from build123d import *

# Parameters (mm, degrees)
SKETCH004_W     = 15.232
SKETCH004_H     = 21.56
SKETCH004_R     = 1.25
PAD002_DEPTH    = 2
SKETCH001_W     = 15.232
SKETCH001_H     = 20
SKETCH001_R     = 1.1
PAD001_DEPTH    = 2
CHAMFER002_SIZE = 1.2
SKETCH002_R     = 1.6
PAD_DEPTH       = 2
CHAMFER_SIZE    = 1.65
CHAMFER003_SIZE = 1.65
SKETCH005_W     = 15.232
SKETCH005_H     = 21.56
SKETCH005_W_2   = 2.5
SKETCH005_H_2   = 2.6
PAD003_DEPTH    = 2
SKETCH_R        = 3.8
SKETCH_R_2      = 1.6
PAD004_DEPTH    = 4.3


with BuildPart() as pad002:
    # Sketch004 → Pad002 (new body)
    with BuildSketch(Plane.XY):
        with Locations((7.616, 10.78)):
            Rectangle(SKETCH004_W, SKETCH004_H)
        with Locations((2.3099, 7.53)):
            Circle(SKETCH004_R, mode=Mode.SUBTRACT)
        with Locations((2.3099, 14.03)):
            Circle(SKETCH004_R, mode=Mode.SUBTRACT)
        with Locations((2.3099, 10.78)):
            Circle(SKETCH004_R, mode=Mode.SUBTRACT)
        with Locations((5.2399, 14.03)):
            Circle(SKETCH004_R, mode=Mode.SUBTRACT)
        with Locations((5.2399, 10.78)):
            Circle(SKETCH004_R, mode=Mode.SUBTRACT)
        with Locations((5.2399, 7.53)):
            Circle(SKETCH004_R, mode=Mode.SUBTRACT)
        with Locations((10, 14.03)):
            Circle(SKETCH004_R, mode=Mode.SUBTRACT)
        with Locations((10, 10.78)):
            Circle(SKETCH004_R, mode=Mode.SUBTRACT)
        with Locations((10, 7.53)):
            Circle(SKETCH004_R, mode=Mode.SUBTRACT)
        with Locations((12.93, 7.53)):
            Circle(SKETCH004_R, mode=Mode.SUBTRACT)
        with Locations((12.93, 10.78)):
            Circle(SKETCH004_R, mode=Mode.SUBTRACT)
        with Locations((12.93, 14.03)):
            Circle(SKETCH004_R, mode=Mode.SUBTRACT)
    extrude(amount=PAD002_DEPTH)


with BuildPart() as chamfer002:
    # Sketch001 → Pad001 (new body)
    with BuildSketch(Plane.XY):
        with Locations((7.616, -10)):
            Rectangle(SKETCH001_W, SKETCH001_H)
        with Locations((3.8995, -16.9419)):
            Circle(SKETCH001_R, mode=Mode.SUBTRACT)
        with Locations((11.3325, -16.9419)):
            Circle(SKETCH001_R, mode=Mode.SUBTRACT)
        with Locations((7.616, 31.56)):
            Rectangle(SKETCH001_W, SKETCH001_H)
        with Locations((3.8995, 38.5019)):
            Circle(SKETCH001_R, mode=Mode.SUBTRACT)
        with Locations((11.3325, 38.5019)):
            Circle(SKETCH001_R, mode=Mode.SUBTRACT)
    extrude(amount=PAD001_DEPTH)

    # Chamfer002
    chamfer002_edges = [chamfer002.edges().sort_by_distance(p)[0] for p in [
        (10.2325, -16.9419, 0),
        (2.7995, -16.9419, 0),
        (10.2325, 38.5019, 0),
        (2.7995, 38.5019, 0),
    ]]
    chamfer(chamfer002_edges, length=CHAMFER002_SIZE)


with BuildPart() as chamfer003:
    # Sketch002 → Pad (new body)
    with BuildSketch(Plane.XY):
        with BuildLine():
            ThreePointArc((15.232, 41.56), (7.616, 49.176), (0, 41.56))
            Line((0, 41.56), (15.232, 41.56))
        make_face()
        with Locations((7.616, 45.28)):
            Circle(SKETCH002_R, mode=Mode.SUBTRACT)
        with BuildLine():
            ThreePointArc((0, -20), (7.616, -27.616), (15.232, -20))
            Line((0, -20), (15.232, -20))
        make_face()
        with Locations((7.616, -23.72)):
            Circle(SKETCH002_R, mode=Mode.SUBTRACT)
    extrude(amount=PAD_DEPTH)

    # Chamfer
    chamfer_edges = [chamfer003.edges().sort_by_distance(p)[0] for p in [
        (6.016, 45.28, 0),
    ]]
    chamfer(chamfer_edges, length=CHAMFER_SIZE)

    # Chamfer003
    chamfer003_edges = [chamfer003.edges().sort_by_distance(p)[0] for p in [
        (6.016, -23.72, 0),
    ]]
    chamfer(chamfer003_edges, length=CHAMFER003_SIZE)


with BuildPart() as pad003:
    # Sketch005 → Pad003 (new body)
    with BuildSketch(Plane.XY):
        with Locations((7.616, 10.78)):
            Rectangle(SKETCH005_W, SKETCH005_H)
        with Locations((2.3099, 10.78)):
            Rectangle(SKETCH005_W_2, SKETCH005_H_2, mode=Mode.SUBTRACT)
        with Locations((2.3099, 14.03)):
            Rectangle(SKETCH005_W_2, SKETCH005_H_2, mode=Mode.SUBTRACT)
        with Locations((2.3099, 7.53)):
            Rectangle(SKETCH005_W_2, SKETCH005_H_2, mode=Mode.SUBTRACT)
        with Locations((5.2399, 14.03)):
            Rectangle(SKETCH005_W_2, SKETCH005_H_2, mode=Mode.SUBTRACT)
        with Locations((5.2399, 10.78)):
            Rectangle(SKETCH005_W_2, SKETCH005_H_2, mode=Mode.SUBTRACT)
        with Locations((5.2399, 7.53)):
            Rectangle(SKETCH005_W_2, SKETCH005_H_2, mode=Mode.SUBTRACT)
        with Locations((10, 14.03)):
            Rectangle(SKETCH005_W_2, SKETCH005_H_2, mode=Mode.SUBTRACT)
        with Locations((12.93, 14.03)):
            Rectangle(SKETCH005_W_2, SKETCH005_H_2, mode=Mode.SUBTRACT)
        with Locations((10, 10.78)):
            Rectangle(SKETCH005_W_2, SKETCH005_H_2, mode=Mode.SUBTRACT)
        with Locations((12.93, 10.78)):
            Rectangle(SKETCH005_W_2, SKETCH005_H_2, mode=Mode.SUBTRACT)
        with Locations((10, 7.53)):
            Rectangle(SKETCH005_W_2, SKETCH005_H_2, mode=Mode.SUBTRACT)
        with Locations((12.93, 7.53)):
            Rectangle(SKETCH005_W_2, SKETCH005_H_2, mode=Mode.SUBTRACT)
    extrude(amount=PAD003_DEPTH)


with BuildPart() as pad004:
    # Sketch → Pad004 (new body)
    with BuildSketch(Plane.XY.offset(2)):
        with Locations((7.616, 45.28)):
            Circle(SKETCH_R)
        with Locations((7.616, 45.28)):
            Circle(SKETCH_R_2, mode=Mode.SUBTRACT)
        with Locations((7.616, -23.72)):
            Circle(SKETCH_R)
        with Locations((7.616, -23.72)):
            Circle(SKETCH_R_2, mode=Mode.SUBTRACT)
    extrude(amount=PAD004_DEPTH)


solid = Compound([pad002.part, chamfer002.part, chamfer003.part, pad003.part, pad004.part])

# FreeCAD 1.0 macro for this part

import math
import FreeCAD as App
import Part
import Sketcher
Q = App.Units.Quantity


def edges_at(feature, points):
    """Names of the edges that pass closest to the given points."""
    edges = feature.Shape.Edges
    near = lambda p: min(range(len(edges)), key=lambda i: edges[i].distToShape(Part.Vertex(*p))[0])
    return sorted({f"Edge{near(p) + 1}" for p in points})


def add_polygon(sketch, points):
    """Adds a closed chain of lines whose ends are joined by coincident constraints."""
    first, n = sketch.GeometryCount, len(points)
    for a, b in zip(points, points[1:] + points[:1]):
        sketch.addGeometry(Part.LineSegment(App.Vector(*a, 0), App.Vector(*b, 0)), False)
    for i in range(n):
        sketch.addConstraint(Sketcher.Constraint("Coincident", first + i, 2, first + (i + 1) % n, 1))

doc = App.newDocument("Part")
params = doc.addObject("Spreadsheet::Sheet", "Params")
for row, (alias, value) in enumerate([
    ("sketch1_diameter", "2.5 mm"),
    ("sketch1_height", "21.56 mm"),
    ("pad1_length", "2 mm"),
    ("sketch2_diameter", "2.2 mm"),
    ("sketch2_height", "20 mm"),
    ("pad2_length", "2 mm"),
    ("chamfer_size", "1.2 mm"),
    ("sketch3_diameter", "3.2 mm"),
    ("pad3_length", "2 mm"),
    ("chamfer2_size", "1.65 mm"),
    ("chamfer3_size", "1.65 mm"),
    ("sketch4_width", "2.5 mm"),
    ("sketch4_height", "2.6 mm"),
    ("sketch4_height2", "21.56 mm"),
    ("pad4_length", "2 mm"),
    ("sketch5_diameter", "7.6 mm"),
    ("sketch5_diameter2", "3.2 mm"),
    ("pad5_length", "4.3 mm"),
], start=1):
    params.set(f"A{row}", alias)
    params.set(f"B{row}", "=" + value)
    params.setAlias(f"B{row}", alias)

body = doc.addObject("PartDesign::Body", "Body")

# Sketch on XY plane
sketch1 = body.newObject("Sketcher::SketchObject", "Sketch")
sketch1.AttachmentSupport = (doc.getObject("XY_Plane"), [""])
sketch1.MapMode = "FlatFace"
add_polygon(sketch1, [(0, 21.56), (0, 0), (15.232, 0), (15.232, 21.56)])  # lines 0-3
sketch1.addGeometry(Part.Circle(App.Vector(2.3099, 7.53, 0), App.Vector(0, 0, 1), 1.25), False)  # 4
sketch1.addGeometry(Part.Circle(App.Vector(5.2399, 7.53, 0), App.Vector(0, 0, 1), 1.25), False)  # 5
sketch1.addGeometry(Part.Circle(App.Vector(2.3099, 10.78, 0), App.Vector(0, 0, 1), 1.25), False)  # 6
sketch1.addGeometry(Part.Circle(App.Vector(5.2399, 10.78, 0), App.Vector(0, 0, 1), 1.25), False)  # 7
sketch1.addGeometry(Part.Circle(App.Vector(10, 7.53, 0), App.Vector(0, 0, 1), 1.25), False)  # 8
sketch1.addGeometry(Part.Circle(App.Vector(12.93, 7.53, 0), App.Vector(0, 0, 1), 1.25), False)  # 9
sketch1.addGeometry(Part.Circle(App.Vector(10, 10.78, 0), App.Vector(0, 0, 1), 1.25), False)  # 10
sketch1.addGeometry(Part.Circle(App.Vector(12.93, 10.78, 0), App.Vector(0, 0, 1), 1.25), False)  # 11
sketch1.addGeometry(Part.Circle(App.Vector(2.3099, 14.03, 0), App.Vector(0, 0, 1), 1.25), False)  # 12
sketch1.addGeometry(Part.Circle(App.Vector(5.2399, 14.03, 0), App.Vector(0, 0, 1), 1.25), False)  # 13
sketch1.addGeometry(Part.Circle(App.Vector(10, 14.03, 0), App.Vector(0, 0, 1), 1.25), False)  # 14
sketch1.addGeometry(Part.Circle(App.Vector(12.93, 14.03, 0), App.Vector(0, 0, 1), 1.25), False)  # 15
sketch1.addConstraint([
    Sketcher.Constraint("Vertical", 0),
    Sketcher.Constraint("Horizontal", 1),
    Sketcher.Constraint("Vertical", 2),
    Sketcher.Constraint("Horizontal", 3),
    Sketcher.Constraint("Coincident", 0, 2, -1, 1),
    Sketcher.Constraint("Equal", 4, 5),
    Sketcher.Constraint("Equal", 5, 6),
    Sketcher.Constraint("Equal", 6, 7),
    Sketcher.Constraint("Equal", 7, 8),
    Sketcher.Constraint("Equal", 8, 9),
    Sketcher.Constraint("Equal", 9, 10),
    Sketcher.Constraint("Equal", 10, 11),
    Sketcher.Constraint("Equal", 11, 12),
    Sketcher.Constraint("Equal", 12, 13),
    Sketcher.Constraint("Equal", 13, 14),
    Sketcher.Constraint("Equal", 14, 15),
    Sketcher.Constraint("Horizontal", 4, 3, 5, 3),
    Sketcher.Constraint("Horizontal", 6, 3, 7, 3),
    Sketcher.Constraint("Horizontal", 5, 3, 8, 3),
    Sketcher.Constraint("Horizontal", 8, 3, 9, 3),
    Sketcher.Constraint("Horizontal", 7, 3, 10, 3),
    Sketcher.Constraint("Horizontal", 10, 3, 11, 3),
    Sketcher.Constraint("Horizontal", 12, 3, 13, 3),
    Sketcher.Constraint("Horizontal", 13, 3, 14, 3),
    Sketcher.Constraint("Horizontal", 14, 3, 15, 3),
    Sketcher.Constraint("Vertical", 4, 3, 6, 3),
    Sketcher.Constraint("Vertical", 5, 3, 7, 3),
    Sketcher.Constraint("Vertical", 8, 3, 10, 3),
    Sketcher.Constraint("Vertical", 9, 3, 11, 3),
    Sketcher.Constraint("Vertical", 6, 3, 12, 3),
    Sketcher.Constraint("Vertical", 7, 3, 13, 3),
    Sketcher.Constraint("Vertical", 10, 3, 14, 3),
    Sketcher.Constraint("Vertical", 11, 3, 15, 3),
    Sketcher.Constraint("Diameter", 4, Q("2.5 mm")),
    Sketcher.Constraint("DistanceX", -1, 1, 8, 3, Q("10 mm")),
    Sketcher.Constraint("DistanceY", 0, 2, 0, 1, Q("21.56 mm")),
    Sketcher.Constraint("DistanceY", 4, 3, 12, 3, Q("6.5 mm")),
    Sketcher.Constraint("DistanceX", 1, 1, 1, 2, Q("15.232 mm")),
    Sketcher.Constraint("DistanceY", -1, 1, 4, 3, Q("7.53 mm")),
    Sketcher.Constraint("DistanceY", -1, 1, 6, 3, Q("10.78 mm")),
    Sketcher.Constraint("DistanceX", -1, 1, 9, 3, Q("12.93 mm")),
    Sketcher.Constraint("DistanceX", 4, 3, 5, 3, Q("2.93 mm")),
    Sketcher.Constraint("DistanceX", -1, 1, 4, 3, Q("2.3099 mm")),
])
sketch1.setExpression("Constraints[37]", "Params.sketch1_diameter")
sketch1.setExpression("Constraints[39]", "Params.sketch1_height")
pad1 = body.newObject("PartDesign::Pad", "Pad")
pad1.Profile = sketch1
pad1.setExpression("Length", "Params.pad1_length")
body2 = doc.addObject("PartDesign::Body", "Body001")
body2.AllowCompound = True

# Sketch on XY plane
sketch2 = body2.newObject("Sketcher::SketchObject", "Sketch001")
sketch2.AttachmentSupport = (doc.getObject("XY_Plane001"), [""])
sketch2.MapMode = "FlatFace"
add_polygon(sketch2, [(0, 0), (0, -20), (15.232, -20), (15.232, 0)])  # lines 0-3
sketch2.addGeometry(Part.Circle(App.Vector(3.8995, -16.9419, 0), App.Vector(0, 0, 1), 1.1), False)  # 4
sketch2.addGeometry(Part.Circle(App.Vector(11.3325, -16.9419, 0), App.Vector(0, 0, 1), 1.1), False)  # 5
add_polygon(sketch2, [(0, 41.56), (0, 21.56), (15.232, 21.56), (15.232, 41.56)])  # lines 6-9
sketch2.addGeometry(Part.Circle(App.Vector(3.8995, 38.5019, 0), App.Vector(0, 0, 1), 1.1), False)  # 10
sketch2.addGeometry(Part.Circle(App.Vector(11.3325, 38.5019, 0), App.Vector(0, 0, 1), 1.1), False)  # 11
sketch2.addConstraint([
    Sketcher.Constraint("Vertical", 0),
    Sketcher.Constraint("Horizontal", 1),
    Sketcher.Constraint("Vertical", 2),
    Sketcher.Constraint("Horizontal", 3),
    Sketcher.Constraint("Vertical", 6),
    Sketcher.Constraint("Horizontal", 7),
    Sketcher.Constraint("Vertical", 8),
    Sketcher.Constraint("Horizontal", 9),
    Sketcher.Constraint("Coincident", 3, 2, -1, 1),
    Sketcher.Constraint("Equal", 4, 5),
    Sketcher.Constraint("Equal", 5, 10),
    Sketcher.Constraint("Equal", 10, 11),
    Sketcher.Constraint("PointOnObject", 6, 2, -2),
    Sketcher.Constraint("Horizontal", 4, 3, 5, 3),
    Sketcher.Constraint("Horizontal", 10, 3, 11, 3),
    Sketcher.Constraint("Vertical", 4, 3, 10, 3),
    Sketcher.Constraint("Vertical", 5, 3, 11, 3),
    Sketcher.Constraint("Vertical", 2, 2, 7, 2),
    Sketcher.Constraint("Equal", 2, 6),
    Sketcher.Constraint("Diameter", 4, Q("2.2 mm")),
    Sketcher.Constraint("DistanceY", 0, 2, 0, 1, Q("20 mm")),
    Sketcher.Constraint("DistanceX", 1, 1, 1, 2, Q("15.232 mm")),
    Sketcher.Constraint("DistanceY", -1, 1, 6, 2, Q("21.56 mm")),
    Sketcher.Constraint("DistanceX", 4, 3, 5, 3, Q("7.433 mm")),
    Sketcher.Constraint("DistanceX", -1, 1, 4, 3, Q("3.8995 mm")),
    Sketcher.Constraint("DistanceY", 4, 3, -1, 1, Q("16.9419 mm")),
    Sketcher.Constraint("DistanceY", -1, 1, 10, 3, Q("38.5019 mm")),
])
sketch2.setExpression("Constraints[27]", "Params.sketch2_diameter")
sketch2.setExpression("Constraints[28]", "Params.sketch2_height")
pad2 = body2.newObject("PartDesign::Pad", "Pad001")
pad2.Profile = sketch2
pad2.setExpression("Length", "Params.pad2_length")
doc.recompute()

chamfer = body2.newObject("PartDesign::Chamfer", "Chamfer")
chamfer.Base = (pad2, edges_at(pad2, [
    (10.232, -16.942, 0),
    (2.8, -16.942, 0),
    (10.232, 38.502, 0),
    (2.8, 38.502, 0),
]))
chamfer.setExpression("Size", "Params.chamfer_size")
body3 = doc.addObject("PartDesign::Body", "Body002")
body3.AllowCompound = True

# Sketch on XY plane
sketch3 = body3.newObject("Sketcher::SketchObject", "Sketch002")
sketch3.AttachmentSupport = (doc.getObject("XY_Plane002"), [""])
sketch3.MapMode = "FlatFace"
sketch3.addGeometry([
    Part.ArcOfCircle(Part.Circle(App.Vector(7.616, 41.56, 0), App.Vector(0, 0, 1), 7.616), math.radians(0), math.radians(180)),  # 0
    Part.LineSegment(App.Vector(0, 41.56, 0), App.Vector(15.232, 41.56, 0)),  # 1
    Part.Circle(App.Vector(7.616, 45.28, 0), App.Vector(0, 0, 1), 1.6),  # 2
    Part.ArcOfCircle(Part.Circle(App.Vector(7.616, -20, 0), App.Vector(0, 0, 1), 7.616), math.radians(180), math.radians(360)),  # 3
    Part.LineSegment(App.Vector(15.232, -20, 0), App.Vector(0, -20, 0)),  # 4
    Part.Circle(App.Vector(7.616, -23.72, 0), App.Vector(0, 0, 1), 1.6),  # 5
], False)
sketch3.addConstraint([
    Sketcher.Constraint("Coincident", 0, 1, 1, 2),
    Sketcher.Constraint("Coincident", 1, 1, 0, 2),
    Sketcher.Constraint("Coincident", 3, 1, 4, 2),
    Sketcher.Constraint("Coincident", 4, 1, 3, 2),
    Sketcher.Constraint("Horizontal", 1),
    Sketcher.Constraint("Horizontal", 4),
    Sketcher.Constraint("Equal", 0, 3),
    Sketcher.Constraint("Equal", 2, 5),
    Sketcher.Constraint("PointOnObject", 1, 1, -2),
    Sketcher.Constraint("PointOnObject", 3, 1, -2),
    Sketcher.Constraint("Vertical", 0, 3, 2, 3),
    Sketcher.Constraint("Vertical", 3, 3, 5, 3),
    Sketcher.Constraint("Diameter", 2, Q("3.2 mm")),
    Sketcher.Constraint("DistanceY", 3, 3, -1, 1, Q("20 mm")),
    Sketcher.Constraint("DistanceY", 3, 1, -1, 1, Q("20 mm")),
    Sketcher.Constraint("Radius", 0, Q("7.616 mm")),
    Sketcher.Constraint("DistanceY", 5, 3, 2, 3, Q("69 mm")),
    Sketcher.Constraint("DistanceY", -1, 1, 0, 3, Q("41.56 mm")),
    Sketcher.Constraint("DistanceY", -1, 1, 2, 3, Q("45.28 mm")),
    Sketcher.Constraint("DistanceY", -1, 1, 0, 1, Q("41.56 mm")),
])
sketch3.setExpression("Constraints[12]", "Params.sketch3_diameter")
pad3 = body3.newObject("PartDesign::Pad", "Pad002")
pad3.Profile = sketch3
pad3.setExpression("Length", "Params.pad3_length")
doc.recompute()

chamfer2 = body3.newObject("PartDesign::Chamfer", "Chamfer001")
chamfer2.Base = (pad3, edges_at(pad3, [(6.016, 45.28, 0)]))
chamfer2.setExpression("Size", "Params.chamfer2_size")
doc.recompute()

chamfer3 = body3.newObject("PartDesign::Chamfer", "Chamfer002")
chamfer3.Base = (chamfer2, edges_at(chamfer2, [(6.016, -23.72, 0)]))
chamfer3.setExpression("Size", "Params.chamfer3_size")
body4 = doc.addObject("PartDesign::Body", "Body003")

# Sketch on XY plane
sketch4 = body4.newObject("Sketcher::SketchObject", "Sketch003")
sketch4.AttachmentSupport = (doc.getObject("XY_Plane003"), [""])
sketch4.MapMode = "FlatFace"
add_polygon(sketch4, [(0, 21.56), (0, 0), (15.232, 0), (15.232, 21.56)])  # lines 0-3
add_polygon(sketch4, [(3.5599, 6.23), (1.0599, 6.23), (1.0599, 8.83), (3.5599, 8.83)])  # lines 4-7
add_polygon(sketch4, [(6.4899, 6.23), (3.9899, 6.23), (3.9899, 8.83), (6.4899, 8.83)])  # lines 8-11
add_polygon(sketch4, [(11.25, 6.23), (8.75, 6.23), (8.75, 8.83), (11.25, 8.83)])  # lines 12-15
add_polygon(sketch4, [(14.18, 6.23), (11.68, 6.23), (11.68, 8.83), (14.18, 8.83)])  # lines 16-19
add_polygon(sketch4, [(3.5599, 9.48), (1.0599, 9.48), (1.0599, 12.08), (3.5599, 12.08)])  # lines 20-23
add_polygon(sketch4, [(6.4899, 9.48), (3.9899, 9.48), (3.9899, 12.08), (6.4899, 12.08)])  # lines 24-27
add_polygon(sketch4, [(3.5599, 12.73), (1.0599, 12.73), (1.0599, 15.33), (3.5599, 15.33)])  # lines 28-31
add_polygon(sketch4, [(6.4899, 12.73), (3.9899, 12.73), (3.9899, 15.33), (6.4899, 15.33)])  # lines 32-35
add_polygon(sketch4, [(11.25, 9.48), (8.75, 9.48), (8.75, 12.08), (11.25, 12.08)])  # lines 36-39
add_polygon(sketch4, [(14.18, 9.48), (11.68, 9.48), (11.68, 12.08), (14.18, 12.08)])  # lines 40-43
add_polygon(sketch4, [(11.25, 12.73), (8.75, 12.73), (8.75, 15.33), (11.25, 15.33)])  # lines 44-47
add_polygon(sketch4, [(14.18, 12.73), (11.68, 12.73), (11.68, 15.33), (14.18, 15.33)])  # lines 48-51
sketch4.addConstraint([
    Sketcher.Constraint("Vertical", 0),
    Sketcher.Constraint("Horizontal", 1),
    Sketcher.Constraint("Vertical", 2),
    Sketcher.Constraint("Horizontal", 3),
    Sketcher.Constraint("Horizontal", 4),
    Sketcher.Constraint("Vertical", 5),
    Sketcher.Constraint("Horizontal", 6),
    Sketcher.Constraint("Vertical", 7),
    Sketcher.Constraint("Horizontal", 8),
    Sketcher.Constraint("Vertical", 9),
    Sketcher.Constraint("Horizontal", 10),
    Sketcher.Constraint("Vertical", 11),
    Sketcher.Constraint("Horizontal", 12),
    Sketcher.Constraint("Vertical", 13),
    Sketcher.Constraint("Horizontal", 14),
    Sketcher.Constraint("Vertical", 15),
    Sketcher.Constraint("Horizontal", 16),
    Sketcher.Constraint("Vertical", 17),
    Sketcher.Constraint("Horizontal", 18),
    Sketcher.Constraint("Vertical", 19),
    Sketcher.Constraint("Horizontal", 20),
    Sketcher.Constraint("Vertical", 21),
    Sketcher.Constraint("Horizontal", 22),
    Sketcher.Constraint("Vertical", 23),
    Sketcher.Constraint("Horizontal", 24),
    Sketcher.Constraint("Vertical", 25),
    Sketcher.Constraint("Horizontal", 26),
    Sketcher.Constraint("Vertical", 27),
    Sketcher.Constraint("Horizontal", 28),
    Sketcher.Constraint("Vertical", 29),
    Sketcher.Constraint("Horizontal", 30),
    Sketcher.Constraint("Vertical", 31),
    Sketcher.Constraint("Horizontal", 32),
    Sketcher.Constraint("Vertical", 33),
    Sketcher.Constraint("Horizontal", 34),
    Sketcher.Constraint("Vertical", 35),
    Sketcher.Constraint("Horizontal", 36),
    Sketcher.Constraint("Vertical", 37),
    Sketcher.Constraint("Horizontal", 38),
    Sketcher.Constraint("Vertical", 39),
    Sketcher.Constraint("Horizontal", 40),
    Sketcher.Constraint("Vertical", 41),
    Sketcher.Constraint("Horizontal", 42),
    Sketcher.Constraint("Vertical", 43),
    Sketcher.Constraint("Horizontal", 44),
    Sketcher.Constraint("Vertical", 45),
    Sketcher.Constraint("Horizontal", 46),
    Sketcher.Constraint("Vertical", 47),
    Sketcher.Constraint("Horizontal", 48),
    Sketcher.Constraint("Vertical", 49),
    Sketcher.Constraint("Horizontal", 50),
    Sketcher.Constraint("Vertical", 51),
    Sketcher.Constraint("Coincident", 0, 2, -1, 1),
    Sketcher.Constraint("Horizontal", 7, 2, 8, 2),
    Sketcher.Constraint("Horizontal", 6, 2, 9, 2),
    Sketcher.Constraint("Horizontal", 11, 2, 12, 2),
    Sketcher.Constraint("Horizontal", 10, 2, 13, 2),
    Sketcher.Constraint("Horizontal", 15, 2, 16, 2),
    Sketcher.Constraint("Horizontal", 14, 2, 17, 2),
    Sketcher.Constraint("Horizontal", 23, 2, 24, 2),
    Sketcher.Constraint("Horizontal", 22, 2, 25, 2),
    Sketcher.Constraint("Horizontal", 31, 2, 32, 2),
    Sketcher.Constraint("Horizontal", 30, 2, 33, 2),
    Sketcher.Constraint("Horizontal", 27, 2, 36, 2),
    Sketcher.Constraint("Horizontal", 26, 2, 37, 2),
    Sketcher.Constraint("Horizontal", 39, 2, 40, 2),
    Sketcher.Constraint("Horizontal", 38, 2, 41, 2),
    Sketcher.Constraint("Horizontal", 35, 2, 44, 2),
    Sketcher.Constraint("Horizontal", 34, 2, 45, 2),
    Sketcher.Constraint("Horizontal", 47, 2, 48, 2),
    Sketcher.Constraint("Horizontal", 46, 2, 49, 2),
    Sketcher.Constraint("Vertical", 5, 2, 20, 2),
    Sketcher.Constraint("Vertical", 7, 2, 22, 2),
    Sketcher.Constraint("Vertical", 9, 2, 24, 2),
    Sketcher.Constraint("Vertical", 11, 2, 26, 2),
    Sketcher.Constraint("Vertical", 21, 2, 28, 2),
    Sketcher.Constraint("Vertical", 23, 2, 30, 2),
    Sketcher.Constraint("Vertical", 25, 2, 32, 2),
    Sketcher.Constraint("Vertical", 27, 2, 34, 2),
    Sketcher.Constraint("Vertical", 13, 2, 36, 2),
    Sketcher.Constraint("Vertical", 15, 2, 38, 2),
    Sketcher.Constraint("Vertical", 17, 2, 40, 2),
    Sketcher.Constraint("Vertical", 19, 2, 42, 2),
    Sketcher.Constraint("Vertical", 37, 2, 44, 2),
    Sketcher.Constraint("Vertical", 39, 2, 46, 2),
    Sketcher.Constraint("Vertical", 41, 2, 48, 2),
    Sketcher.Constraint("Vertical", 43, 2, 50, 2),
    Sketcher.Constraint("Equal", 6, 8),
    Sketcher.Constraint("Equal", 10, 12),
    Sketcher.Constraint("Equal", 14, 16),
    Sketcher.Constraint("Equal", 19, 21),
    Sketcher.Constraint("Equal", 27, 29),
    Sketcher.Constraint("DistanceX", 4, 2, 4, 1, Q("2.5 mm")),
    Sketcher.Constraint("DistanceY", 5, 1, 5, 2, Q("2.6 mm")),
    Sketcher.Constraint("DistanceY", 0, 2, 0, 1, Q("21.56 mm")),
    Sketcher.Constraint("DistanceY", 5, 2, 28, 2, Q("3.9 mm")),
    Sketcher.Constraint("DistanceX", 1, 1, 1, 2, Q("15.232 mm")),
    Sketcher.Constraint("DistanceY", -1, 1, 4, 2, Q("6.23 mm")),
    Sketcher.Constraint("DistanceX", -1, 1, 12, 2, Q("8.75 mm")),
    Sketcher.Constraint("DistanceX", -1, 1, 16, 2, Q("11.68 mm")),
    Sketcher.Constraint("DistanceY", -1, 1, 20, 2, Q("9.48 mm")),
    Sketcher.Constraint("DistanceX", 7, 2, 8, 2, Q("0.43 mm")),
    Sketcher.Constraint("DistanceX", -1, 1, 4, 2, Q("1.0599 mm")),
])
sketch4.setExpression("Constraints[144]", "Params.sketch4_width")
sketch4.setExpression("Constraints[145]", "Params.sketch4_height")
sketch4.setExpression("Constraints[146]", "Params.sketch4_height2")
pad4 = body4.newObject("PartDesign::Pad", "Pad003")
pad4.Profile = sketch4
pad4.setExpression("Length", "Params.pad4_length")
body5 = doc.addObject("PartDesign::Body", "Body004")
body5.AllowCompound = True

# Sketch on XY plane
sketch5 = body5.newObject("Sketcher::SketchObject", "Sketch004")
sketch5.AttachmentSupport = (doc.getObject("XY_Plane004"), [""])
sketch5.MapMode = "FlatFace"
sketch5.AttachmentOffset = App.Placement(App.Vector(0, 0, 2), App.Rotation())
sketch5.addGeometry([
    Part.Circle(App.Vector(7.616, 45.28, 0), App.Vector(0, 0, 1), 3.8),
    Part.Circle(App.Vector(7.616, 45.28, 0), App.Vector(0, 0, 1), 1.6),
    Part.Circle(App.Vector(7.616, -23.72, 0), App.Vector(0, 0, 1), 3.8),
    Part.Circle(App.Vector(7.616, -23.72, 0), App.Vector(0, 0, 1), 1.6),
], False)
sketch5.addConstraint([
    Sketcher.Constraint("Coincident", 1, 3, 0, 3),
    Sketcher.Constraint("Coincident", 3, 3, 2, 3),
    Sketcher.Constraint("Equal", 0, 2),
    Sketcher.Constraint("Equal", 1, 3),
    Sketcher.Constraint("Vertical", 1, 3, 2, 3),
    Sketcher.Constraint("Diameter", 0, Q("7.6 mm")),
    Sketcher.Constraint("Diameter", 1, Q("3.2 mm")),
    Sketcher.Constraint("DistanceY", 2, 3, 0, 3, Q("69 mm")),
    Sketcher.Constraint("DistanceY", -1, 1, 0, 3, Q("45.28 mm")),
    Sketcher.Constraint("DistanceX", -1, 1, 0, 3, Q("7.616 mm")),
])
sketch5.setExpression("Constraints[5]", "Params.sketch5_diameter")
sketch5.setExpression("Constraints[6]", "Params.sketch5_diameter2")
pad5 = body5.newObject("PartDesign::Pad", "Pad004")
pad5.Profile = sketch5
pad5.setExpression("Length", "Params.pad5_length")

doc.recompute()
